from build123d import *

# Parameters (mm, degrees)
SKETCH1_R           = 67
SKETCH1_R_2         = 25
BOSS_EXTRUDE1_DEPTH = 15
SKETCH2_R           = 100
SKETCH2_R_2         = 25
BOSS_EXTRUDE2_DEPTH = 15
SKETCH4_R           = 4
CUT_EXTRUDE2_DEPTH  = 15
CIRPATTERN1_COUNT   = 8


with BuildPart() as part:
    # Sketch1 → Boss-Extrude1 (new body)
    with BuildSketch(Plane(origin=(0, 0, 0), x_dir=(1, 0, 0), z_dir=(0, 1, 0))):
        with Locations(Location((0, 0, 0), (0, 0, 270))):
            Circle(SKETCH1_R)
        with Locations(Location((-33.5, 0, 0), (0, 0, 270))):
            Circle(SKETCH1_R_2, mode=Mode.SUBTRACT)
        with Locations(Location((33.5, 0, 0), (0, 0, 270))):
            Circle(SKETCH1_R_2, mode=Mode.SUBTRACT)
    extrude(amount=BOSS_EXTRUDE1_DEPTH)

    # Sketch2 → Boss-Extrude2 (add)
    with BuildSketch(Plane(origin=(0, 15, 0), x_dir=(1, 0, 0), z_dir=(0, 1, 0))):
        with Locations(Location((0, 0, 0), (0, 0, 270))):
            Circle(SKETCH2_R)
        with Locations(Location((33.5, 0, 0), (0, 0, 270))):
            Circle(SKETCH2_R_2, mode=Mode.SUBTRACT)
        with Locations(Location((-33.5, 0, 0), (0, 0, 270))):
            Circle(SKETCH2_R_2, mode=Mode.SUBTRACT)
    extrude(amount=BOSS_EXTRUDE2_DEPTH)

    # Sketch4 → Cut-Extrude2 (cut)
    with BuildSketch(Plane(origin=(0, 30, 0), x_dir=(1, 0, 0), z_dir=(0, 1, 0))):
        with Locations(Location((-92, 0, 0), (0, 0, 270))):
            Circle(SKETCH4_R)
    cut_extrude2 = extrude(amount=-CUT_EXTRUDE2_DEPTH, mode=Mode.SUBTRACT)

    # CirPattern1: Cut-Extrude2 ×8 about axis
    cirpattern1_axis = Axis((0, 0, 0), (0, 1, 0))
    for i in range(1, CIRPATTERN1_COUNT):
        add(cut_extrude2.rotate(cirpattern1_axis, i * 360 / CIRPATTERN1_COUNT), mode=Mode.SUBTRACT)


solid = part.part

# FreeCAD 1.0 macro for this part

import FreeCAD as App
import Part
import Sketcher

V = App.Vector
Q = App.Units.Quantity

doc = App.newDocument("Part")
body = doc.addObject("PartDesign::Body", "Body")

# Sketch on XZ plane
sketch1 = doc.addObject("Sketcher::SketchObject", "Sketch")
body.addObject(sketch1)
sketch1.AttachmentSupport = (doc.XZ_Plane, [""])
sketch1.MapMode = "FlatFace"
sketch1.addGeometry(Part.Circle(V(0, 0, 0), V(0, 0, 1), 67), False)
sketch1.addGeometry(Part.Circle(V(-33.5, 0, 0), V(0, 0, 1), 25), False)
sketch1.addGeometry(Part.Circle(V(33.5, 0, 0), V(0, 0, 1), 25), False)
sketch1.addConstraint(Sketcher.Constraint("Coincident", 0, 3, -1, 1))
sketch1.addConstraint(Sketcher.Constraint("Equal", 1, 2))
sketch1.addConstraint(Sketcher.Constraint("Symmetric", 1, 3, 2, 3, -1, 1))
sketch1.addConstraint(Sketcher.Constraint("PointOnObject", 1, 3, -1))
sketch1.addConstraint(Sketcher.Constraint("Diameter", 0, Q("134 mm")))
sketch1.addConstraint(Sketcher.Constraint("Diameter", 1, Q("50 mm")))
sketch1.addConstraint(Sketcher.Constraint("DistanceX", 1, 3, 2, 3, Q("67 mm")))
pad1 = doc.addObject("PartDesign::Pad", "Pad")
body.addObject(pad1)
pad1.Profile = sketch1
pad1.Length = 15
pad1.Reversed = True

# Sketch on XZ plane
sketch2 = doc.addObject("Sketcher::SketchObject", "Sketch001")
body.addObject(sketch2)
sketch2.AttachmentSupport = (doc.XZ_Plane, [""])
sketch2.MapMode = "FlatFace"
sketch2.AttachmentOffset = App.Placement(V(0, 0, -15), App.Rotation())
sketch2.addGeometry(Part.Circle(V(0, 0, 0), V(0, 0, 1), 100), False)
sketch2.addGeometry(Part.Circle(V(-33.5, 0, 0), V(0, 0, 1), 25), False)
sketch2.addGeometry(Part.Circle(V(33.5, 0, 0), V(0, 0, 1), 25), False)
sketch2.addConstraint(Sketcher.Constraint("Coincident", 0, 3, -1, 1))
sketch2.addConstraint(Sketcher.Constraint("Equal", 1, 2))
sketch2.addConstraint(Sketcher.Constraint("Symmetric", 1, 3, 2, 3, -1, 1))
sketch2.addConstraint(Sketcher.Constraint("PointOnObject", 1, 3, -1))
sketch2.addConstraint(Sketcher.Constraint("Diameter", 0, Q("200 mm")))
sketch2.addConstraint(Sketcher.Constraint("Diameter", 1, Q("50 mm")))
sketch2.addConstraint(Sketcher.Constraint("DistanceX", 1, 3, 2, 3, Q("67 mm")))
pad2 = doc.addObject("PartDesign::Pad", "Pad001")
body.addObject(pad2)
pad2.Profile = sketch2
pad2.Length = 15
pad2.Reversed = True

# Sketch on XZ plane
sketch3 = doc.addObject("Sketcher::SketchObject", "Sketch002")
body.addObject(sketch3)
sketch3.AttachmentSupport = (doc.XZ_Plane, [""])
sketch3.MapMode = "FlatFace"
sketch3.AttachmentOffset = App.Placement(V(0, 0, -30), App.Rotation())
sketch3.addGeometry(Part.Circle(V(-92, 0, 0), V(0, 0, 1), 4), False)
sketch3.addConstraint(Sketcher.Constraint("PointOnObject", 0, 3, -1))
sketch3.addConstraint(Sketcher.Constraint("Diameter", 0, Q("8 mm")))
sketch3.addConstraint(Sketcher.Constraint("DistanceX", 0, 3, -1, 1, Q("92 mm")))
pocket1 = doc.addObject("PartDesign::Pocket", "Pocket")
body.addObject(pocket1)
pocket1.Profile = sketch3
pocket1.Length = 15
pocket1.Reversed = True
doc.recompute()

polarpattern = doc.addObject("PartDesign::PolarPattern", "PolarPattern")
body.addObject(polarpattern)
polarpattern.Originals = [pocket1]
polarpattern.Axis = (doc.Y_Axis, [""])
polarpattern.Angle = 360
polarpattern.Occurrences = 8
body.Tip = polarpattern

doc.recompute()
